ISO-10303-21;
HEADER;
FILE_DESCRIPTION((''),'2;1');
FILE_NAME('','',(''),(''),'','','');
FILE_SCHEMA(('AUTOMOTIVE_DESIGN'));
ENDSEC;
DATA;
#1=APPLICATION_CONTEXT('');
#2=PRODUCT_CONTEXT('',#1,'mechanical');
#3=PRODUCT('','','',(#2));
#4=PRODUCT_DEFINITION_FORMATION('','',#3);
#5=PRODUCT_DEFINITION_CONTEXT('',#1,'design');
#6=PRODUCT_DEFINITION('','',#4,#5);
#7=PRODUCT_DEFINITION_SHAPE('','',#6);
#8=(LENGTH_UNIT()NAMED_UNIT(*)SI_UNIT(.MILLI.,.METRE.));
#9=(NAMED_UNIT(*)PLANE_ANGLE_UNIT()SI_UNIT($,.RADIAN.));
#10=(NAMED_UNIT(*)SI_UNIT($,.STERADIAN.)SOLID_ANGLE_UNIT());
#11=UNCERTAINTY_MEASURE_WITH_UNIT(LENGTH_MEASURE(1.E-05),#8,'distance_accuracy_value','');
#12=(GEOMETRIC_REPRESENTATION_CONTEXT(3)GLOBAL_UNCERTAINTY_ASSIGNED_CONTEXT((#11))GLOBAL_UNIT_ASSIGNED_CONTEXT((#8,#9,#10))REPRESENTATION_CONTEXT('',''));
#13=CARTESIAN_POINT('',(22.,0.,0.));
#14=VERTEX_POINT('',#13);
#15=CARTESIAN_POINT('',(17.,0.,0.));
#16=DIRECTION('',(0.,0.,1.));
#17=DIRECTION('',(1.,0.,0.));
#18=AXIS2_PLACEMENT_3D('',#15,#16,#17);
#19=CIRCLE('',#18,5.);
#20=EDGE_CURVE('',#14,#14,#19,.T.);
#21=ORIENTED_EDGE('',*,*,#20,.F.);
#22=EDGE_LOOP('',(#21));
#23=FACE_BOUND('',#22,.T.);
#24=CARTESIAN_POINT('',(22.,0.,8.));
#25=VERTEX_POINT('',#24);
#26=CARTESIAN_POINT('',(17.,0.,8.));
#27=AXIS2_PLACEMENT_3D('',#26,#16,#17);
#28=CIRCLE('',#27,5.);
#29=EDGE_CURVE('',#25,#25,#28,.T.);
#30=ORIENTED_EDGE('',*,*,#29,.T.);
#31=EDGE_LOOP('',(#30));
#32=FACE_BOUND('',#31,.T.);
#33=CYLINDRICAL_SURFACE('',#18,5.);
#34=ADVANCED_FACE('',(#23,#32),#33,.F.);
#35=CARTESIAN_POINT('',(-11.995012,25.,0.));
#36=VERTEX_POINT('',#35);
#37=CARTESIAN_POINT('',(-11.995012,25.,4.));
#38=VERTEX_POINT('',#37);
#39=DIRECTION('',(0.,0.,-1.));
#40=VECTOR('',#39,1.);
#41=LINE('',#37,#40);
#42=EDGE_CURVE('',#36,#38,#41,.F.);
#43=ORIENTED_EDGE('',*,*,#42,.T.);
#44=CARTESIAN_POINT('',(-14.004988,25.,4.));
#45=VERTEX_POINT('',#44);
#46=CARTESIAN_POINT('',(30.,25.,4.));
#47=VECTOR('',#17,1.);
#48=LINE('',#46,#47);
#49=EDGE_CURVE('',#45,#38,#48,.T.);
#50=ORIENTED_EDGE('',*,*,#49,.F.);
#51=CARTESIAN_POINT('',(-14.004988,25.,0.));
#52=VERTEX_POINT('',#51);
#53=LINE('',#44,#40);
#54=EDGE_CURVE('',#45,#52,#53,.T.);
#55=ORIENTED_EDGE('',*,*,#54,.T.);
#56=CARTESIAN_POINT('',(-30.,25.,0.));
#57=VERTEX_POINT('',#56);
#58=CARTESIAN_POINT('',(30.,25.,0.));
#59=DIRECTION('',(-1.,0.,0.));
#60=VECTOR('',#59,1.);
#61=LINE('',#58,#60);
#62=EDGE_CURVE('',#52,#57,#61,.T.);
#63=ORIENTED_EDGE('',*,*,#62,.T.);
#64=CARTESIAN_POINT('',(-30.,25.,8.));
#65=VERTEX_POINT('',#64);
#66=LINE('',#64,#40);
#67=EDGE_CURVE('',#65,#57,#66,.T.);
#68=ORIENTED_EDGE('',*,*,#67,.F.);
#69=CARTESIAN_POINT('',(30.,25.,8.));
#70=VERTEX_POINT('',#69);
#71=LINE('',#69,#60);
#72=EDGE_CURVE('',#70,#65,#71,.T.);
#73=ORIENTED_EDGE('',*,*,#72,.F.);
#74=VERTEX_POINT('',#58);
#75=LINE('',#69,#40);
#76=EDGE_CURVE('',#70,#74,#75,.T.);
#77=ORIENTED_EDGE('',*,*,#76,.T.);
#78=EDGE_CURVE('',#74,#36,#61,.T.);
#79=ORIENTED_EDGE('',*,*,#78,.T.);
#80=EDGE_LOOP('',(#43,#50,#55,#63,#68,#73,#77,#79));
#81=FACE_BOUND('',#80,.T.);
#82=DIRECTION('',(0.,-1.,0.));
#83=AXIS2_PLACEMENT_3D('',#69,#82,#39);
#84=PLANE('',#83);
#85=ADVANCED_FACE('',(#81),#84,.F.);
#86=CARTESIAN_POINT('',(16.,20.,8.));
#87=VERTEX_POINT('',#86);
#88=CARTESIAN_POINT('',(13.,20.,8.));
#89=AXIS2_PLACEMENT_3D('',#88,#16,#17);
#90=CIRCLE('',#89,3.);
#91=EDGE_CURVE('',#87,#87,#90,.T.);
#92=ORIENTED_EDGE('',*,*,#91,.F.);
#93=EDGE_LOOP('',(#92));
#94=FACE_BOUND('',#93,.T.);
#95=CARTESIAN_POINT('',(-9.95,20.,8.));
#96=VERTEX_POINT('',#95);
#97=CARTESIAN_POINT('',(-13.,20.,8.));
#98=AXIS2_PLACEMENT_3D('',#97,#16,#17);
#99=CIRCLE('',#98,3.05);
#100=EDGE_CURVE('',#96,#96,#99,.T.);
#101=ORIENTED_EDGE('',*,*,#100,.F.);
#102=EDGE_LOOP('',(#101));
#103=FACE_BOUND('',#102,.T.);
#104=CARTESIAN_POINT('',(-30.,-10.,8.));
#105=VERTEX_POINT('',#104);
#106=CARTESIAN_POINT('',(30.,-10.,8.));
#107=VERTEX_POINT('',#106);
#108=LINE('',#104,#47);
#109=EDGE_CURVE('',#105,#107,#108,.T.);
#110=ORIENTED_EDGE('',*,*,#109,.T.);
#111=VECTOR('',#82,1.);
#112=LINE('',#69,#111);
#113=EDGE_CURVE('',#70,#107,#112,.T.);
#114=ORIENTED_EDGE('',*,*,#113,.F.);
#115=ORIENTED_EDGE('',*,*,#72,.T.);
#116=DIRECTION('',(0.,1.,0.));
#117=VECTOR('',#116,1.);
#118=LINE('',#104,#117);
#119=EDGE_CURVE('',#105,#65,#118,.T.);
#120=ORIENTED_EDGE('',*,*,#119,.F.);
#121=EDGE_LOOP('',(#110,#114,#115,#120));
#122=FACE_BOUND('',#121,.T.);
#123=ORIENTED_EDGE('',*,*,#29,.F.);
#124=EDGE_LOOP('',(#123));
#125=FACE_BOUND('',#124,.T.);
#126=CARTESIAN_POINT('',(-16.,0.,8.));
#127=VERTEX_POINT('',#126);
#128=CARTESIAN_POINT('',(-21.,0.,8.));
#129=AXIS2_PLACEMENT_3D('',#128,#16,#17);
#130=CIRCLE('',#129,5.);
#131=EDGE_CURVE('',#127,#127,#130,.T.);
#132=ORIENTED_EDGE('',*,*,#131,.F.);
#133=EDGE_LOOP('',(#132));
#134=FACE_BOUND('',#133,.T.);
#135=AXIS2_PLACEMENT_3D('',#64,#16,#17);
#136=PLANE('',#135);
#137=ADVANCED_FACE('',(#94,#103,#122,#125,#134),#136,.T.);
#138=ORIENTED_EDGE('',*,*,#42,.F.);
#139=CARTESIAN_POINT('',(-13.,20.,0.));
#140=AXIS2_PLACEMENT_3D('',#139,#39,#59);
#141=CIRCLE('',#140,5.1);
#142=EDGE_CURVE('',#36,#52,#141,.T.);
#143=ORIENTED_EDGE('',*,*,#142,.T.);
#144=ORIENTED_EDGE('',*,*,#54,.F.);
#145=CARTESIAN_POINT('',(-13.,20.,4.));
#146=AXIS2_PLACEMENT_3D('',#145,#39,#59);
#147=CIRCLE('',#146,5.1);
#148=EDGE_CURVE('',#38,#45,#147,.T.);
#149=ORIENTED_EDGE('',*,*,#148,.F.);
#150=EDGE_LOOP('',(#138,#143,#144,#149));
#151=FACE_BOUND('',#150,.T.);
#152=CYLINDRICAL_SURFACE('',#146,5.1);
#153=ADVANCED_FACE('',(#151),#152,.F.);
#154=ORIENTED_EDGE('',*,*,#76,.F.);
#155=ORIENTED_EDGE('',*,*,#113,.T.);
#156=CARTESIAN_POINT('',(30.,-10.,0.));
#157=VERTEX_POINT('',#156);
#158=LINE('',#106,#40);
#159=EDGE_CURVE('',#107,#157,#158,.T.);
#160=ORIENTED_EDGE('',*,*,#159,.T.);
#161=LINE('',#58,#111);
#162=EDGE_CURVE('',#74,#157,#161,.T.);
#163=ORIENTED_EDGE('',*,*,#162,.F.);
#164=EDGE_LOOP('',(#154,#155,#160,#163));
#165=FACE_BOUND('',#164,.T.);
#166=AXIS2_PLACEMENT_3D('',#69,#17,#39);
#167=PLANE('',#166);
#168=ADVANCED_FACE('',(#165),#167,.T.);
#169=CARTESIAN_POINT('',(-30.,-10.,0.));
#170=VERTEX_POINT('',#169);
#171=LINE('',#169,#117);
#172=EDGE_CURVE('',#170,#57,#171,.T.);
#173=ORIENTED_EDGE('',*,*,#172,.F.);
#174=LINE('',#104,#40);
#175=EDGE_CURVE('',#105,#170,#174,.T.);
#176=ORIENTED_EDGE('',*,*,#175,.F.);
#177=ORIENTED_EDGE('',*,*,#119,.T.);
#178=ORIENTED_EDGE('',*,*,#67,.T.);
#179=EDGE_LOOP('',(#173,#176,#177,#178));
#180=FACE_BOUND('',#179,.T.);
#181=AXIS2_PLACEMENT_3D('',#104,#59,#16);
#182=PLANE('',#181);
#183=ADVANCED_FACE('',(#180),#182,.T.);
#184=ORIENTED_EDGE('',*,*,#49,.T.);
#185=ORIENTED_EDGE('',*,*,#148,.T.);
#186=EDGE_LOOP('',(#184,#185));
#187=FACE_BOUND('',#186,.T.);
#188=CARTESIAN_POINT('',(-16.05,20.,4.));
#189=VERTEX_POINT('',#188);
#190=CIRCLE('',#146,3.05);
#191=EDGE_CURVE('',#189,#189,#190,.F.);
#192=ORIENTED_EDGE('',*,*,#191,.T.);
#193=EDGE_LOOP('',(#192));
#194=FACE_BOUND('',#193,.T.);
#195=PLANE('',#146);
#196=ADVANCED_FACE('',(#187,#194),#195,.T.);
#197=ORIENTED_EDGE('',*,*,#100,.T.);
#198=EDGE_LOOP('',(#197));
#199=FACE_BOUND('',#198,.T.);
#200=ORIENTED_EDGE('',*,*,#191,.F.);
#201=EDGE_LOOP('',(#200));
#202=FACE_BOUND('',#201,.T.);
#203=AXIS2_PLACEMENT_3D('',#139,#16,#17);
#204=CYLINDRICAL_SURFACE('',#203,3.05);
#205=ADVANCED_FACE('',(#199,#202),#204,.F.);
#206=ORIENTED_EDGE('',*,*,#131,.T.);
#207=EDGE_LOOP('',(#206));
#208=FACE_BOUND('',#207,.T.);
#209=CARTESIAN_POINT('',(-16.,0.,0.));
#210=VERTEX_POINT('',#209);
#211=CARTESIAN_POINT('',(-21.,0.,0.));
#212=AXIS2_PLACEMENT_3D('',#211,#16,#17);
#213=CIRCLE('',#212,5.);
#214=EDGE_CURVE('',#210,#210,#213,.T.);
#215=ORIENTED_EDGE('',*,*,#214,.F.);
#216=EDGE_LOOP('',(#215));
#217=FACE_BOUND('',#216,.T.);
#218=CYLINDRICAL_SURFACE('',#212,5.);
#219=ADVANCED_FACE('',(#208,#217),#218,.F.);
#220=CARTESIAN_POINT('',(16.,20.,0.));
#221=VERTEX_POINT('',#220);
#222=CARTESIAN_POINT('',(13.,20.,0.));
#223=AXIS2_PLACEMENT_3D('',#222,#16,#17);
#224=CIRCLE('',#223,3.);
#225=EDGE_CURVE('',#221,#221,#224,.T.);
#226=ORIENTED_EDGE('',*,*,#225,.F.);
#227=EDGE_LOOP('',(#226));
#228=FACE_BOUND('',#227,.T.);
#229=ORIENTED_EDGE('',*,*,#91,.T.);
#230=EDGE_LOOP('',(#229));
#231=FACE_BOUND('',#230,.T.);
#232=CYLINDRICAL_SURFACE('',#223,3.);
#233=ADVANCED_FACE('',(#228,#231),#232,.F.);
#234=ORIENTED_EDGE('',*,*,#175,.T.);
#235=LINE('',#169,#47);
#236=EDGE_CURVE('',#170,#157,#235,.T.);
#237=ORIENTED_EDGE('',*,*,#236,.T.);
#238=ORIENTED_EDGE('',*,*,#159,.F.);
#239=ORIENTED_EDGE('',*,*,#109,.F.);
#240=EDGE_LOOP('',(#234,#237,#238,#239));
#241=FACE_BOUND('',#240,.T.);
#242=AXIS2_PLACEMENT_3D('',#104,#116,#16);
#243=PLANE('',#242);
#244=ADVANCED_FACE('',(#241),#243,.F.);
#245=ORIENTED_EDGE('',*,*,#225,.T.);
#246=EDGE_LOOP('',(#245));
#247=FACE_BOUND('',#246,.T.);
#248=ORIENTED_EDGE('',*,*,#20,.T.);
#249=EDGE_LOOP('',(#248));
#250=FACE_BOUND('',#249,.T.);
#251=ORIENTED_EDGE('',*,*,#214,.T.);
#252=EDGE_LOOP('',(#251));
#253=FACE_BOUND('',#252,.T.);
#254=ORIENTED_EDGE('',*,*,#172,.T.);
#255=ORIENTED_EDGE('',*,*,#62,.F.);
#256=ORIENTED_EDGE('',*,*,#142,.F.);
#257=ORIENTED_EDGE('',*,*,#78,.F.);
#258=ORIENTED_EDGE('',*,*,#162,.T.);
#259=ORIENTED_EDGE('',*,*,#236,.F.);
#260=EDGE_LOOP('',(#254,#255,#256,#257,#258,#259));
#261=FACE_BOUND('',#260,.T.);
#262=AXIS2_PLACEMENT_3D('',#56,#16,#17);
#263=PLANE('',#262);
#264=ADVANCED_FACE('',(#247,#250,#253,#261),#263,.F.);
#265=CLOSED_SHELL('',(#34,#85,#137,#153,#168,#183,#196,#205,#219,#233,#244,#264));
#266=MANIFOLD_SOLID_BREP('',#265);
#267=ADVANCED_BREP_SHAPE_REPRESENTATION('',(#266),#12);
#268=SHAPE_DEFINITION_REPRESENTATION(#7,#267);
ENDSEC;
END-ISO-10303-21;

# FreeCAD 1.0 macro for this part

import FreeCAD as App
import Part
import Sketcher

doc = App.newDocument("Part")
body = doc.addObject("PartDesign::Body", "Body")

sketch1 = body.newObject("Sketcher::SketchObject", "Sketch")
sketch1.AttachmentSupport = (doc.getObject("XY_Plane"), [""])
sketch1.MapMode = "FlatFace"
sketch1.addGeometry(Part.LineSegment(App.Vector(-30, 25, 0), App.Vector(-30, -10, 0)), False)
sketch1.addGeometry(Part.LineSegment(App.Vector(-30, -10, 0), App.Vector(30, -10, 0)), False)
sketch1.addGeometry(Part.LineSegment(App.Vector(30, -10, 0), App.Vector(30, 25, 0)), False)
sketch1.addGeometry(Part.LineSegment(App.Vector(30, 25, 0), App.Vector(-30, 25, 0)), False)
sketch1.addConstraint(Sketcher.Constraint("Coincident", 0, 2, 1, 1))
sketch1.addConstraint(Sketcher.Constraint("Coincident", 1, 2, 2, 1))
sketch1.addConstraint(Sketcher.Constraint("Coincident", 2, 2, 3, 1))
sketch1.addConstraint(Sketcher.Constraint("Coincident", 3, 2, 0, 1))
sketch1.addConstraint(Sketcher.Constraint("Vertical", 0))
sketch1.addConstraint(Sketcher.Constraint("Horizontal", 1))
sketch1.addConstraint(Sketcher.Constraint("Vertical", 2))
sketch1.addConstraint(Sketcher.Constraint("Horizontal", 3))
sketch1.addConstraint(Sketcher.Constraint("DistanceX", 1, 1, 1, 2, 60.0))
sketch1.addConstraint(Sketcher.Constraint("DistanceY", 0, 2, 0, 1, 35.0))
sketch1.addConstraint(Sketcher.Constraint("DistanceX", 0, 2, -1, 1, 30.0))
sketch1.addConstraint(Sketcher.Constraint("DistanceY", 0, 2, -1, 1, 10.0))
pad1 = body.newObject("PartDesign::Pad", "Pad")
pad1.Profile = sketch1
pad1.Length = 8

sketch2 = body.newObject("Sketcher::SketchObject", "Sketch001")
sketch2.AttachmentSupport = (doc.getObject("XY_Plane"), [""])
sketch2.MapMode = "FlatFace"
sketch2.AttachmentOffset = App.Placement(App.Vector(0, 0, 8), App.Rotation())
sketch2.addGeometry(Part.Circle(App.Vector(-13, 20, 0), App.Vector(0, 0, 1), 3), False)
sketch2.addGeometry(Part.Circle(App.Vector(13, 20, 0), App.Vector(0, 0, 1), 3), False)
sketch2.addGeometry(Part.Circle(App.Vector(-21, 0, 0), App.Vector(0, 0, 1), 5), False)
sketch2.addGeometry(Part.Circle(App.Vector(17, 0, 0), App.Vector(0, 0, 1), 5), False)
sketch2.addConstraint(Sketcher.Constraint("Equal", 2, 3))
sketch2.addConstraint(Sketcher.Constraint("Symmetric", 0, 3, 1, 3, -2))
sketch2.addConstraint(Sketcher.Constraint("PointOnObject", 2, 3, -1))
sketch2.addConstraint(Sketcher.Constraint("PointOnObject", 3, 3, -1))
sketch2.addConstraint(Sketcher.Constraint("Diameter", 1, 6.0))
sketch2.addConstraint(Sketcher.Constraint("Diameter", 2, 10.0))
sketch2.addConstraint(Sketcher.Constraint("Diameter", 0, 6.1))
sketch2.addConstraint(Sketcher.Constraint("DistanceX", 0, 3, -1, 1, 13.0))
sketch2.addConstraint(Sketcher.Constraint("DistanceY", -1, 1, 0, 3, 20.0))
sketch2.addConstraint(Sketcher.Constraint("DistanceX", 2, 3, -1, 1, 21.0))
sketch2.addConstraint(Sketcher.Constraint("DistanceX", -1, 1, 3, 3, 17.0))
pocket1 = body.newObject("PartDesign::Pocket", "Pocket")
pocket1.Profile = sketch2
pocket1.Length = 8

sketch3 = body.newObject("Sketcher::SketchObject", "Sketch002")
sketch3.AttachmentSupport = (doc.getObject("XY_Plane"), [""])
sketch3.MapMode = "FlatFace"
sketch3.addGeometry(Part.Circle(App.Vector(-13, 20, 0), App.Vector(0, 0, 1), 5), False)
sketch3.addConstraint(Sketcher.Constraint("Diameter", 0, 10.2))
sketch3.addConstraint(Sketcher.Constraint("DistanceX", 0, 3, -1, 1, 13.0))
sketch3.addConstraint(Sketcher.Constraint("DistanceY", -1, 1, 0, 3, 20.0))
pocket2 = body.newObject("PartDesign::Pocket", "Pocket001")
pocket2.Profile = sketch3
pocket2.Length = 4
pocket2.Reversed = True

doc.recompute()
